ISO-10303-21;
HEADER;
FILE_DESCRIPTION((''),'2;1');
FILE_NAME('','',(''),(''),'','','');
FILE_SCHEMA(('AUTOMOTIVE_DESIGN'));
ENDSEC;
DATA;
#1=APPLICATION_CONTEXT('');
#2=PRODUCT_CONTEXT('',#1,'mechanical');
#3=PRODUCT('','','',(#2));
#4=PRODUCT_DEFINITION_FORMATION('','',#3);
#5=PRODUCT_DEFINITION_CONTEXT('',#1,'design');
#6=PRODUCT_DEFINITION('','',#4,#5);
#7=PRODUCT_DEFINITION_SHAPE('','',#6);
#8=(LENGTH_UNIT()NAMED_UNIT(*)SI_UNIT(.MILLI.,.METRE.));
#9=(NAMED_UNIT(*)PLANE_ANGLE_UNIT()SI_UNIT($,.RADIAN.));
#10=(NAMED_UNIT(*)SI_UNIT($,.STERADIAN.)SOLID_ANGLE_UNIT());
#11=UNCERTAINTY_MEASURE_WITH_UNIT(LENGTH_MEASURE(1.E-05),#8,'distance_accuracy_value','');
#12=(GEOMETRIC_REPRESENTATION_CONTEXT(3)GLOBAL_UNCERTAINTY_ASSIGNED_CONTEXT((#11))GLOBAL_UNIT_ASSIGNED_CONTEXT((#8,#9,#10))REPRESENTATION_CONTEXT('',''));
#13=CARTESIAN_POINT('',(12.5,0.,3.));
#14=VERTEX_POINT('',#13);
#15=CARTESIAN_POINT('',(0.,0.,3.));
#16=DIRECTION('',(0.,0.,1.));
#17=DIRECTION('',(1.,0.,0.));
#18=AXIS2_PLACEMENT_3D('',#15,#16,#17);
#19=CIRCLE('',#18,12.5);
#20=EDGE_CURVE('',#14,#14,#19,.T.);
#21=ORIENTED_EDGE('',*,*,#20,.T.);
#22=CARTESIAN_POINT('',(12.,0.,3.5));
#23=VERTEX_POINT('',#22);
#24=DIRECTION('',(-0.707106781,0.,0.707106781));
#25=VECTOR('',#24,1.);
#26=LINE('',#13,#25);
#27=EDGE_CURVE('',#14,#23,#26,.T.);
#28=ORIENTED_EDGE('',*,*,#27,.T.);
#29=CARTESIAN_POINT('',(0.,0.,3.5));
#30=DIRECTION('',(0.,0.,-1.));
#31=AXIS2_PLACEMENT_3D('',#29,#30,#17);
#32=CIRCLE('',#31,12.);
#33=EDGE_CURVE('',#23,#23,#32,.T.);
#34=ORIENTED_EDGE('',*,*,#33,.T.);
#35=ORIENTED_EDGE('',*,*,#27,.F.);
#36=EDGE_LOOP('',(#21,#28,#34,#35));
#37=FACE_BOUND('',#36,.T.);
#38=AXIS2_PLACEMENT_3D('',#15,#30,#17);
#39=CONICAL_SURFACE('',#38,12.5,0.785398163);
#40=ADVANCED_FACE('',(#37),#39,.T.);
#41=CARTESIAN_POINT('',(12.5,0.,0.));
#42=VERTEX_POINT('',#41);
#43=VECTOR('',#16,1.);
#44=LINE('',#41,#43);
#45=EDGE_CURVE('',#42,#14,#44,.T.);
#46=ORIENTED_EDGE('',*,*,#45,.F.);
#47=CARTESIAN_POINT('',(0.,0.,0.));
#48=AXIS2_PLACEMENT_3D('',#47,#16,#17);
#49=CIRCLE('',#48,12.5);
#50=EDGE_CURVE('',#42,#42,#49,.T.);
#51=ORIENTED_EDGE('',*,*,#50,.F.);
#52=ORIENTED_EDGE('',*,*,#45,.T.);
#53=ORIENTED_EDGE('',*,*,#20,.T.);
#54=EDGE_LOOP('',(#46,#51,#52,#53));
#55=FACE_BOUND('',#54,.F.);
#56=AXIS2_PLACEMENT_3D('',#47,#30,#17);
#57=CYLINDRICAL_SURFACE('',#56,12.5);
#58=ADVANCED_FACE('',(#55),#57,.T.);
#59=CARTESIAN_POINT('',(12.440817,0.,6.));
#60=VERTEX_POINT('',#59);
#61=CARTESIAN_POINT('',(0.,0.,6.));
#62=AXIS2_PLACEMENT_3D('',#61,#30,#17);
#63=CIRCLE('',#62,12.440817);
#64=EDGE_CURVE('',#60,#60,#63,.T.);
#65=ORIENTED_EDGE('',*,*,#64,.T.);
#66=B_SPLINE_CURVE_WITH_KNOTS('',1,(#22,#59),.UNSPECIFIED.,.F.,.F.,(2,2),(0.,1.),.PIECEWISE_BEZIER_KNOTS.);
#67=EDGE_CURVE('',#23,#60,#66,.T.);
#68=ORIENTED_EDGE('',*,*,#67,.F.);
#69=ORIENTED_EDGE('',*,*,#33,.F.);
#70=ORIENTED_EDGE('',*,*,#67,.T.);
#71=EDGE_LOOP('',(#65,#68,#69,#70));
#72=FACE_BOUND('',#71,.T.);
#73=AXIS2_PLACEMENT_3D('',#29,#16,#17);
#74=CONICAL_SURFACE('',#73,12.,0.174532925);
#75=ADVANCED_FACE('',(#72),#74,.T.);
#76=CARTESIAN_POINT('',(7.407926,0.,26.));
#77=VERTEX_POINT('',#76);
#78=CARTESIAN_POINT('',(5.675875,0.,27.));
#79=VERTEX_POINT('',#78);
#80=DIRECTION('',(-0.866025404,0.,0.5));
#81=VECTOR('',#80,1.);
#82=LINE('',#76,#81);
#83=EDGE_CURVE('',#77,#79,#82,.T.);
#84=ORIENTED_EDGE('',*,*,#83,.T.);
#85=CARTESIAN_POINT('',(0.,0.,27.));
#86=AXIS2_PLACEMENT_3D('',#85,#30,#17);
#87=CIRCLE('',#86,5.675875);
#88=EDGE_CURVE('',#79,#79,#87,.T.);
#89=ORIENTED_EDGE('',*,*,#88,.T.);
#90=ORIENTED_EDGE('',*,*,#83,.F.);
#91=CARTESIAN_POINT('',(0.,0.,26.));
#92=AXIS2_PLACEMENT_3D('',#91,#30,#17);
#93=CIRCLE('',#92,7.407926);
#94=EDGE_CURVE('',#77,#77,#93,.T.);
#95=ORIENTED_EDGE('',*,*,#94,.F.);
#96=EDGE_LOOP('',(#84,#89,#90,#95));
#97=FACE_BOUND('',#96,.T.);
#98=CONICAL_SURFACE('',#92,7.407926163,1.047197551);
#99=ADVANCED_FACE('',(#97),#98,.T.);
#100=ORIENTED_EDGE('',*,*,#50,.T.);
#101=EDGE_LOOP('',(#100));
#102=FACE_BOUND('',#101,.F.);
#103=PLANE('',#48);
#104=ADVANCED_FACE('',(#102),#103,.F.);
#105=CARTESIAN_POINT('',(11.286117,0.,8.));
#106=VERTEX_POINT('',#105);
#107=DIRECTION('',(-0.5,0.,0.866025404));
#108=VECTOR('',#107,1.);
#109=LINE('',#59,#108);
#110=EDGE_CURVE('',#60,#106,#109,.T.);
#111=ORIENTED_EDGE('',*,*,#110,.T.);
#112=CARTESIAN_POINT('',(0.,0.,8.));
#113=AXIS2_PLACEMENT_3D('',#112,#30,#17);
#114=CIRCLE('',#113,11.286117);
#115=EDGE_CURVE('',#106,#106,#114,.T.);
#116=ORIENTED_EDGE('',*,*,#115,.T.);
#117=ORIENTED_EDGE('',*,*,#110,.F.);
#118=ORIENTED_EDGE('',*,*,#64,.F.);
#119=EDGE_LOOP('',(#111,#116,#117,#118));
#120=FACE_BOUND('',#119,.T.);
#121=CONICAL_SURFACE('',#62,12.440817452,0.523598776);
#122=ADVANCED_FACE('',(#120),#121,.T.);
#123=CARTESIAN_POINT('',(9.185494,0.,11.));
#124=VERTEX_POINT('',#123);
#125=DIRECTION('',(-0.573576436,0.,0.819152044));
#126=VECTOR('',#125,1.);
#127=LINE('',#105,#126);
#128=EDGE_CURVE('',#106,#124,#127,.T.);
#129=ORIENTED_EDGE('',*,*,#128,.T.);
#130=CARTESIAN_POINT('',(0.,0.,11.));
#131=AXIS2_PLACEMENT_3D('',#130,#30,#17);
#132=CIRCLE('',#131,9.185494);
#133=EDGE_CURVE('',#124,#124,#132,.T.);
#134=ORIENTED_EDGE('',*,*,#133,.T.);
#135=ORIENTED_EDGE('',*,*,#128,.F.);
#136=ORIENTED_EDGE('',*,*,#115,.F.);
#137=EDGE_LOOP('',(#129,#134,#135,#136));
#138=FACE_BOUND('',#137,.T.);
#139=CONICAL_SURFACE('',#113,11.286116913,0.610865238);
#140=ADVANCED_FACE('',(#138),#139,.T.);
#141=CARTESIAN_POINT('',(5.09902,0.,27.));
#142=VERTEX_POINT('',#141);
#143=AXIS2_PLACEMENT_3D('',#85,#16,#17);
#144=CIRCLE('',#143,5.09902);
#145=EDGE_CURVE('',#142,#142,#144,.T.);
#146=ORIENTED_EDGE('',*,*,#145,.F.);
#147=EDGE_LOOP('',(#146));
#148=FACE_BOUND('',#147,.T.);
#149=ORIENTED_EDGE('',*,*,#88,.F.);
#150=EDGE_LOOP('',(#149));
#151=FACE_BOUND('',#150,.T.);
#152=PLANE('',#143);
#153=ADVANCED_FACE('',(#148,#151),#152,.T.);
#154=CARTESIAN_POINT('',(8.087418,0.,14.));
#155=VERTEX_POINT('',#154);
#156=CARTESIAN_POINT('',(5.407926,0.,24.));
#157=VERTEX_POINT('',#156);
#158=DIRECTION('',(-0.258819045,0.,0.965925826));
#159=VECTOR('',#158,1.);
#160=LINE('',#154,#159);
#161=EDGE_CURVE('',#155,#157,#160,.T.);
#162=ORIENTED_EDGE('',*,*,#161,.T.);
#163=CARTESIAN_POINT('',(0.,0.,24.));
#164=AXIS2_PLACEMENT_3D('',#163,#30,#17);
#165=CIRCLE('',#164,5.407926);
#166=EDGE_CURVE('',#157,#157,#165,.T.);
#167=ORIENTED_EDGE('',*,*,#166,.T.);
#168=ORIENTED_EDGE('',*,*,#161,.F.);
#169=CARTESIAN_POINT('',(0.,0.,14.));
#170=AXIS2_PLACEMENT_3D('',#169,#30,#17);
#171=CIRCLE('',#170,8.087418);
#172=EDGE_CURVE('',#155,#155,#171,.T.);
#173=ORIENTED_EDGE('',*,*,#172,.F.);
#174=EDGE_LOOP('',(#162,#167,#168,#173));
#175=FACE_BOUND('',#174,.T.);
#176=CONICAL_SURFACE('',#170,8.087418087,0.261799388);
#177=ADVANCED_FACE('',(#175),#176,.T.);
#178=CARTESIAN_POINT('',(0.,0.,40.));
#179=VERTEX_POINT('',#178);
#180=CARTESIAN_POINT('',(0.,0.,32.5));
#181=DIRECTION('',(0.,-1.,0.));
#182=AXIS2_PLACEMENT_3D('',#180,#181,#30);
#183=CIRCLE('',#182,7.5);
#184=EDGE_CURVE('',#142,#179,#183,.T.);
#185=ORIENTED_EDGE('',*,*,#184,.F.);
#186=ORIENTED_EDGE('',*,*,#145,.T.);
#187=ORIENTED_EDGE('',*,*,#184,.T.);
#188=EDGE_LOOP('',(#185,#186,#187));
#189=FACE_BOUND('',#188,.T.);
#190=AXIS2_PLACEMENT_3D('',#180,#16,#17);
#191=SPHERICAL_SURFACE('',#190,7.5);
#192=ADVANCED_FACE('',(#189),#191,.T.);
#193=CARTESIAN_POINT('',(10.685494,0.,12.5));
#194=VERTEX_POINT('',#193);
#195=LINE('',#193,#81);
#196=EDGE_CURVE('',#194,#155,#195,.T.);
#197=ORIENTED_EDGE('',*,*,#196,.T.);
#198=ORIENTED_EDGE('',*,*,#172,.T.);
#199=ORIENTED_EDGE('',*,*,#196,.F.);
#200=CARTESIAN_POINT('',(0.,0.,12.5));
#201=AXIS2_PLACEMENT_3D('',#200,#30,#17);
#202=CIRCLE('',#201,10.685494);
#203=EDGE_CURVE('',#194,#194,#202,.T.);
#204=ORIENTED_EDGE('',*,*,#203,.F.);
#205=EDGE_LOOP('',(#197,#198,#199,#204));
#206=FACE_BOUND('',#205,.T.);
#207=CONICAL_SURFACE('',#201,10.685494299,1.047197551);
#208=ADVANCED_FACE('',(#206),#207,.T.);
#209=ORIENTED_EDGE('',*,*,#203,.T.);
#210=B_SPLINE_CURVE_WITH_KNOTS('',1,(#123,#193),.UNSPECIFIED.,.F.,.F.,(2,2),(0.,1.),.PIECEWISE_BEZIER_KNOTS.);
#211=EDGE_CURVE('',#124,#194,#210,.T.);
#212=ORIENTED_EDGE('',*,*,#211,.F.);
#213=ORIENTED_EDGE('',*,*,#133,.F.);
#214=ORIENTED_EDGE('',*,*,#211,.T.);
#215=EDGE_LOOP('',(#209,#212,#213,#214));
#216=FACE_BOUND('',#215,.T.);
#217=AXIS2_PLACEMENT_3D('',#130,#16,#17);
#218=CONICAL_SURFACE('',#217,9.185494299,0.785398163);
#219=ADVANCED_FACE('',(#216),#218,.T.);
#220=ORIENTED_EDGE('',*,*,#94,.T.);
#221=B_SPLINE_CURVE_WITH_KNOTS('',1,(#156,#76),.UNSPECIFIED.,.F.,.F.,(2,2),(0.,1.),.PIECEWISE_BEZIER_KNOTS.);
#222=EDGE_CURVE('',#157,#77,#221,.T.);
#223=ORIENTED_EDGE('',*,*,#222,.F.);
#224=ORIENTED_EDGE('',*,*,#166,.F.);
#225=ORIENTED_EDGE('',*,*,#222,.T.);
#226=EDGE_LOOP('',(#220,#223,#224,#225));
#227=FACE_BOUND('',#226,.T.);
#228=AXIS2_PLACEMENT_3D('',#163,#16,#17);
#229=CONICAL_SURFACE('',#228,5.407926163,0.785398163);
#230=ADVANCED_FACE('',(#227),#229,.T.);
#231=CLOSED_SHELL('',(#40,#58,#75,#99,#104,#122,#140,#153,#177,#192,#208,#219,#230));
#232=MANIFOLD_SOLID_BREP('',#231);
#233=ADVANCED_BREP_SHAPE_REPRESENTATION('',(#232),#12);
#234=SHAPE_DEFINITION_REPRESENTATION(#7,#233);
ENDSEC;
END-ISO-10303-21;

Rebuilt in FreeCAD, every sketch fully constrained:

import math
import FreeCAD as App
import Part
import Sketcher
from FreeCAD import Vector

doc = App.newDocument("Part")
body = doc.addObject("PartDesign::Body", "Body")

sketch1 = body.newObject("Sketcher::SketchObject", "Sketch")
sketch1.AttachmentSupport = (doc.getObject("XY_Plane"), [""])
sketch1.MapMode = "FlatFace"
sketch1.addGeometry(Part.Circle(Vector(0, 0, 0), Vector(0, 0, 1), 12), False)
sketch1.addConstraint([
    Sketcher.Constraint("Coincident", 0, 3, -1, 1),
    Sketcher.Constraint("Diameter", 0, 25.0),
])
pad1 = body.newObject("PartDesign::Pad", "Pad")
pad1.Profile = sketch1
pad1.Length = 3

sketch2 = body.newObject("Sketcher::SketchObject", "Sketch001")
sketch2.AttachmentSupport = (doc.getObject("XY_Plane"), [""])
sketch2.MapMode = "FlatFace"
sketch2.AttachmentOffset = App.Placement(Vector(0, 0, 3), App.Rotation())
sketch2.addGeometry(Part.Circle(Vector(0, 0, 0), Vector(0, 0, 1), 12), False)
sketch2.addConstraint([
    Sketcher.Constraint("Coincident", 0, 3, -1, 1),
    Sketcher.Constraint("Diameter", 0, 25.0),
])
pad2 = body.newObject("PartDesign::Pad", "Pad001")
pad2.Profile = sketch2
pad2.Length = 0.5
pad2.TaperAngle = -45

sketch3 = body.newObject("Sketcher::SketchObject", "Sketch002")
sketch3.AttachmentSupport = (doc.getObject("XY_Plane"), [""])
sketch3.MapMode = "FlatFace"
sketch3.AttachmentOffset = App.Placement(Vector(0, 0, 3.5), App.Rotation())
sketch3.addGeometry(Part.Circle(Vector(0, 0, 0), Vector(0, 0, 1), 12), False)
sketch3.addConstraint([
    Sketcher.Constraint("Coincident", 0, 3, -1, 1),
    Sketcher.Constraint("Diameter", 0, 24.0),
])
pad3 = body.newObject("PartDesign::Pad", "Pad002")
pad3.Profile = sketch3
pad3.Length = 2.5
pad3.TaperAngle = 10

sketch4 = body.newObject("Sketcher::SketchObject", "Sketch003")
sketch4.AttachmentSupport = (doc.getObject("XY_Plane"), [""])
sketch4.MapMode = "FlatFace"
sketch4.AttachmentOffset = App.Placement(Vector(0, 0, 6), App.Rotation())
sketch4.addGeometry(Part.Circle(Vector(0, 0, 0), Vector(0, 0, 1), 12), False)
sketch4.addConstraint([
    Sketcher.Constraint("Coincident", 0, 3, -1, 1),
    Sketcher.Constraint("Diameter", 0, 24.881635),
])
pad4 = body.newObject("PartDesign::Pad", "Pad003")
pad4.Profile = sketch4
pad4.Length = 2
pad4.TaperAngle = -30

sketch5 = body.newObject("Sketcher::SketchObject", "Sketch004")
sketch5.AttachmentSupport = (doc.getObject("XY_Plane"), [""])
sketch5.MapMode = "FlatFace"
sketch5.AttachmentOffset = App.Placement(Vector(0, 0, 8), App.Rotation())
sketch5.addGeometry(Part.Circle(Vector(0, 0, 0), Vector(0, 0, 1), 11), False)
sketch5.addConstraint([
    Sketcher.Constraint("Coincident", 0, 3, -1, 1),
    Sketcher.Constraint("Diameter", 0, 22.572234),
])
pad5 = body.newObject("PartDesign::Pad", "Pad004")
pad5.Profile = sketch5
pad5.Length = 3
pad5.TaperAngle = -35

sketch6 = body.newObject("Sketcher::SketchObject", "Sketch005")
sketch6.AttachmentSupport = (doc.getObject("XY_Plane"), [""])
sketch6.MapMode = "FlatFace"
sketch6.AttachmentOffset = App.Placement(Vector(0, 0, 11), App.Rotation())
sketch6.addGeometry(Part.Circle(Vector(0, 0, 0), Vector(0, 0, 1), 9), False)
sketch6.addConstraint([
    Sketcher.Constraint("Coincident", 0, 3, -1, 1),
    Sketcher.Constraint("Diameter", 0, 18.370989),
])
pad6 = body.newObject("PartDesign::Pad", "Pad005")
pad6.Profile = sketch6
pad6.Length = 1.5
pad6.TaperAngle = 45

sketch7 = body.newObject("Sketcher::SketchObject", "Sketch006")
sketch7.AttachmentSupport = (doc.getObject("XY_Plane"), [""])
sketch7.MapMode = "FlatFace"
sketch7.AttachmentOffset = App.Placement(Vector(0, 0, 12.5), App.Rotation())
sketch7.addGeometry(Part.Circle(Vector(0, 0, 0), Vector(0, 0, 1), 11), False)
sketch7.addConstraint([
    Sketcher.Constraint("Coincident", 0, 3, -1, 1),
    Sketcher.Constraint("Diameter", 0, 21.370989),
])
pad7 = body.newObject("PartDesign::Pad", "Pad006")
pad7.Profile = sketch7
pad7.Length = 1.5
pad7.TaperAngle = -60

sketch8 = body.newObject("Sketcher::SketchObject", "Sketch007")
sketch8.AttachmentSupport = (doc.getObject("XY_Plane"), [""])
sketch8.MapMode = "FlatFace"
sketch8.AttachmentOffset = App.Placement(Vector(0, 0, 14), App.Rotation())
sketch8.addGeometry(Part.Circle(Vector(0, 0, 0), Vector(0, 0, 1), 8), False)
sketch8.addConstraint([
    Sketcher.Constraint("Coincident", 0, 3, -1, 1),
    Sketcher.Constraint("Diameter", 0, 16.174836),
])
pad8 = body.newObject("PartDesign::Pad", "Pad007")
pad8.Profile = sketch8
pad8.Length = 10
pad8.TaperAngle = -15

sketch9 = body.newObject("Sketcher::SketchObject", "Sketch008")
sketch9.AttachmentSupport = (doc.getObject("XY_Plane"), [""])
sketch9.MapMode = "FlatFace"
sketch9.AttachmentOffset = App.Placement(Vector(0, 0, 24), App.Rotation())
sketch9.addGeometry(Part.Circle(Vector(0, 0, 0), Vector(0, 0, 1), 5), False)
sketch9.addConstraint([
    Sketcher.Constraint("Coincident", 0, 3, -1, 1),
    Sketcher.Constraint("Diameter", 0, 10.815852),
])
pad9 = body.newObject("PartDesign::Pad", "Pad008")
pad9.Profile = sketch9
pad9.Length = 2
pad9.TaperAngle = 45

sketch10 = body.newObject("Sketcher::SketchObject", "Sketch009")
sketch10.AttachmentSupport = (doc.getObject("XY_Plane"), [""])
sketch10.MapMode = "FlatFace"
sketch10.AttachmentOffset = App.Placement(Vector(0, 0, 26), App.Rotation())
sketch10.addGeometry(Part.Circle(Vector(0, 0, 0), Vector(0, 0, 1), 7), False)
sketch10.addConstraint([
    Sketcher.Constraint("Coincident", 0, 3, -1, 1),
    Sketcher.Constraint("Diameter", 0, 14.815852),
])
pad10 = body.newObject("PartDesign::Pad", "Pad009")
pad10.Profile = sketch10
pad10.Length = 1
pad10.TaperAngle = -60

sketch11 = body.newObject("Sketcher::SketchObject", "Sketch010")
sketch11.AttachmentSupport = (doc.getObject("XZ_Plane"), [""])
sketch11.MapMode = "FlatFace"
sketch11.addGeometry([
    Part.LineSegment(Vector(0, 40, 0), Vector(0, 25, 0)),
    Part.ArcOfCircle(Part.Circle(Vector(0, 32, 0), Vector(0, 0, 1), 8), math.radians(-90), math.radians(90)),
], False)
sketch11.addConstraint([
    Sketcher.Constraint("Coincident", 0, 1, 1, 2),
    Sketcher.Constraint("Coincident", 1, 1, 0, 2),
    Sketcher.Constraint("Vertical", 0),
    Sketcher.Constraint("PointOnObject", 1, 3, -2),
    Sketcher.Constraint("PointOnObject", 0, 1, -2),
    Sketcher.Constraint("Radius", 1, 7.5),
    Sketcher.Constraint("DistanceY", -1, 1, 0, 1, 40.0),
])
revolution = body.newObject("PartDesign::Revolution", "Revolution")
revolution.Profile = sketch11
revolution.ReferenceAxis = (sketch11, ["V_Axis"])
revolution.Angle = 360

doc.recompute()
